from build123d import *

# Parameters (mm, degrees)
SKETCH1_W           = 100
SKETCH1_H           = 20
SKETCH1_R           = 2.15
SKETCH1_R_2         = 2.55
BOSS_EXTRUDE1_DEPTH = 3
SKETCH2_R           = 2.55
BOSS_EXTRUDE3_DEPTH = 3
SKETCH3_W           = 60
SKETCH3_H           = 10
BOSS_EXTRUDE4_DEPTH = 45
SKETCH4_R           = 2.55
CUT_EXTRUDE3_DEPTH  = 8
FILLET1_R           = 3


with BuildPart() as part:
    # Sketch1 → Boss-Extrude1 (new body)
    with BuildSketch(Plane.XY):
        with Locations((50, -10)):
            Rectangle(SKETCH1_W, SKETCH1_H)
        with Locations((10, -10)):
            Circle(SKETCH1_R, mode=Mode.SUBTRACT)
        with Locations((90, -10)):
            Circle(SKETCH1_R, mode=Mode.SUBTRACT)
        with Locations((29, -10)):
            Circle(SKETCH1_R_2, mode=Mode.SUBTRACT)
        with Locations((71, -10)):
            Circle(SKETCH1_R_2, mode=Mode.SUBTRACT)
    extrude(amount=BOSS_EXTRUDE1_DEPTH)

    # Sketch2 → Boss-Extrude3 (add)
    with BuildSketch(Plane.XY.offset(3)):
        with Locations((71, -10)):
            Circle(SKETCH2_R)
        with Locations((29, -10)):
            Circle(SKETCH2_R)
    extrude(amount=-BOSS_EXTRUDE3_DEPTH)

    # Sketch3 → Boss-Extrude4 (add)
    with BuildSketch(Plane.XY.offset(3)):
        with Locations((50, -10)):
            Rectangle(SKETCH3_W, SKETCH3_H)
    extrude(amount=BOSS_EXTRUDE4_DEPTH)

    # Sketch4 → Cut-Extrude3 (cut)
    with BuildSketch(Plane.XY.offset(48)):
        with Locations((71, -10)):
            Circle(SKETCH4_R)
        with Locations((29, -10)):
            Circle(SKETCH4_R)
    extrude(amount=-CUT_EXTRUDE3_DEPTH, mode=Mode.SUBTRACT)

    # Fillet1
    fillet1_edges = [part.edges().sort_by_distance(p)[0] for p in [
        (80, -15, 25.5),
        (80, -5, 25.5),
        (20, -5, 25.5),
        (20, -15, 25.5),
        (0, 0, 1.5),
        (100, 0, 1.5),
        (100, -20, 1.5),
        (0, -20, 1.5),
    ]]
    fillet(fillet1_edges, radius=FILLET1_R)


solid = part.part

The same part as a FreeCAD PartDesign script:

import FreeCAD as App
import Part
import Sketcher

V = App.Vector


def edges_at(feature, points):
    """Names of the edges that pass closest to the given points."""
    edges = feature.Shape.Edges
    near = lambda p: min(range(len(edges)), key=lambda i: edges[i].distToShape(Part.Vertex(*p))[0])
    return sorted({f"Edge{near(p) + 1}" for p in points})

doc = App.newDocument("Part")
params = doc.addObject("Spreadsheet::Sheet", "Params")
for row, (alias, value) in enumerate([
    ("sketch1_diameter", "4.3 mm"),
    ("sketch1_diameter2", "5.1 mm"),
    ("sketch1_width", "100 mm"),
    ("sketch1_height", "20 mm"),
    ("pad1_length", "3 mm"),
    ("sketch2_diameter", "5.1 mm"),
    ("pad2_length", "3 mm"),
    ("sketch3_width", "60 mm"),
    ("sketch3_height", "10 mm"),
    ("pad3_length", "45 mm"),
    ("sketch4_diameter", "5.1 mm"),
    ("pocket1_length", "8 mm"),
    ("fillet_radius", "3 mm"),
], start=1):
    params.set(f"A{row}", alias)
    params.set(f"B{row}", "=" + value)
    params.setAlias(f"B{row}", alias)

body = doc.addObject("PartDesign::Body", "Body")

# Sketch on XY plane
sketch1 = body.newObject("Sketcher::SketchObject", "Sketch")
sketch1.AttachmentSupport = (doc.getObject("XY_Plane"), [""])
sketch1.MapMode = "FlatFace"
sketch1.addGeometry([
    Part.LineSegment(V(0, 0, 0), V(0, -20, 0)),  # 0
    Part.LineSegment(V(0, -20, 0), V(100, -20, 0)),  # 1
    Part.LineSegment(V(100, -20, 0), V(100, 0, 0)),  # 2
    Part.LineSegment(V(100, 0, 0), V(0, 0, 0)),  # 3
    Part.Circle(V(10, -10, 0), V(0, 0, 1), 2.15),  # 4
    Part.Circle(V(29, -10, 0), V(0, 0, 1), 2.55),  # 5
    Part.Circle(V(71, -10, 0), V(0, 0, 1), 2.55),  # 6
    Part.Circle(V(90, -10, 0), V(0, 0, 1), 2.15),  # 7
], False)
sketch1.addConstraint([
    Sketcher.Constraint("Coincident", 0, 2, 1, 1),
    Sketcher.Constraint("Coincident", 1, 2, 2, 1),
    Sketcher.Constraint("Coincident", 2, 2, 3, 1),
    Sketcher.Constraint("Coincident", 3, 2, 0, 1),
    Sketcher.Constraint("Vertical", 0),
    Sketcher.Constraint("Horizontal", 1),
    Sketcher.Constraint("Vertical", 2),
    Sketcher.Constraint("Horizontal", 3),
    Sketcher.Constraint("Coincident", 3, 2, -1, 1),
    Sketcher.Constraint("Equal", 5, 6),
    Sketcher.Constraint("Equal", 4, 7),
    Sketcher.Constraint("Horizontal", 4, 3, 5, 3),
    Sketcher.Constraint("Horizontal", 5, 3, 6, 3),
    Sketcher.Constraint("Horizontal", 6, 3, 7, 3),
    Sketcher.Constraint("Diameter", 4, 4.3),
    Sketcher.Constraint("Diameter", 5, 5.1),
    Sketcher.Constraint("DistanceX", 1, 1, 1, 2, 100.0),
    Sketcher.Constraint("DistanceY", 0, 2, 0, 1, 20.0),
    Sketcher.Constraint("DistanceX", -1, 1, 4, 3, 10.0),
    Sketcher.Constraint("DistanceY", 4, 3, -1, 1, 10.0),
    Sketcher.Constraint("DistanceX", -1, 1, 5, 3, 29.0),
    Sketcher.Constraint("DistanceX", -1, 1, 6, 3, 71.0),
    Sketcher.Constraint("DistanceX", -1, 1, 7, 3, 90.0),
])
sketch1.setExpression("Constraints[14]", "Params.sketch1_diameter")
sketch1.setExpression("Constraints[15]", "Params.sketch1_diameter2")
sketch1.setExpression("Constraints[16]", "Params.sketch1_width")
sketch1.setExpression("Constraints[17]", "Params.sketch1_height")
pad1 = body.newObject("PartDesign::Pad", "Pad")
pad1.Profile = sketch1
pad1.setExpression("Length", "Params.pad1_length")

# Sketch on XY plane
sketch2 = body.newObject("Sketcher::SketchObject", "Sketch001")
sketch2.AttachmentSupport = (doc.getObject("XY_Plane"), [""])
sketch2.MapMode = "FlatFace"
sketch2.AttachmentOffset = App.Placement(V(0, 0, 3), App.Rotation())
sketch2.addGeometry([
    Part.Circle(V(71, -10, 0), V(0, 0, 1), 2.55),
    Part.Circle(V(29, -10, 0), V(0, 0, 1), 2.55),
], False)
sketch2.addConstraint([
    Sketcher.Constraint("Equal", 0, 1),
    Sketcher.Constraint("Horizontal", 0, 3, 1, 3),
    Sketcher.Constraint("Diameter", 0, 5.1),
    Sketcher.Constraint("DistanceX", -1, 1, 0, 3, 71.0),
    Sketcher.Constraint("DistanceY", 0, 3, -1, 1, 10.0),
    Sketcher.Constraint("DistanceX", -1, 1, 1, 3, 29.0),
])
sketch2.setExpression("Constraints[2]", "Params.sketch2_diameter")
pad2 = body.newObject("PartDesign::Pad", "Pad001")
pad2.Profile = sketch2
pad2.setExpression("Length", "Params.pad2_length")
pad2.Reversed = True

# Sketch on XY plane
sketch3 = body.newObject("Sketcher::SketchObject", "Sketch002")
sketch3.AttachmentSupport = (doc.getObject("XY_Plane"), [""])
sketch3.MapMode = "FlatFace"
sketch3.AttachmentOffset = App.Placement(V(0, 0, 3), App.Rotation())
sketch3.addGeometry([
    Part.LineSegment(V(20, -5, 0), V(20, -15, 0)),
    Part.LineSegment(V(20, -15, 0), V(80, -15, 0)),
    Part.LineSegment(V(80, -15, 0), V(80, -5, 0)),
    Part.LineSegment(V(80, -5, 0), V(20, -5, 0)),
], False)
sketch3.addConstraint([
    Sketcher.Constraint("Coincident", 0, 2, 1, 1),
    Sketcher.Constraint("Coincident", 1, 2, 2, 1),
    Sketcher.Constraint("Coincident", 2, 2, 3, 1),
    Sketcher.Constraint("Coincident", 3, 2, 0, 1),
    Sketcher.Constraint("Vertical", 0),
    Sketcher.Constraint("Horizontal", 1),
    Sketcher.Constraint("Vertical", 2),
    Sketcher.Constraint("Horizontal", 3),
    Sketcher.Constraint("DistanceX", 1, 1, 1, 2, 60.0),
    Sketcher.Constraint("DistanceY", 0, 2, 0, 1, 10.0),
    Sketcher.Constraint("DistanceX", -1, 1, 0, 2, 20.0),
    Sketcher.Constraint("DistanceY", 0, 2, -1, 1, 15.0),
])
sketch3.setExpression("Constraints[8]", "Params.sketch3_width")
sketch3.setExpression("Constraints[9]", "Params.sketch3_height")
pad3 = body.newObject("PartDesign::Pad", "Pad002")
pad3.Profile = sketch3
pad3.setExpression("Length", "Params.pad3_length")

# Sketch on XY plane
sketch4 = body.newObject("Sketcher::SketchObject", "Sketch003")
sketch4.AttachmentSupport = (doc.getObject("XY_Plane"), [""])
sketch4.MapMode = "FlatFace"
sketch4.AttachmentOffset = App.Placement(V(0, 0, 48), App.Rotation())
sketch4.addGeometry([
    Part.Circle(V(71, -10, 0), V(0, 0, 1), 2.55),
    Part.Circle(V(29, -10, 0), V(0, 0, 1), 2.55),
], False)
sketch4.addConstraint([
    Sketcher.Constraint("Equal", 0, 1),
    Sketcher.Constraint("Horizontal", 0, 3, 1, 3),
    Sketcher.Constraint("Diameter", 0, 5.1),
    Sketcher.Constraint("DistanceX", -1, 1, 0, 3, 71.0),
    Sketcher.Constraint("DistanceY", 0, 3, -1, 1, 10.0),
    Sketcher.Constraint("DistanceX", -1, 1, 1, 3, 29.0),
])
sketch4.setExpression("Constraints[2]", "Params.sketch4_diameter")
pocket1 = body.newObject("PartDesign::Pocket", "Pocket")
pocket1.Profile = sketch4
pocket1.setExpression("Length", "Params.pocket1_length")
doc.recompute()

fillet = body.newObject("PartDesign::Fillet", "Fillet")
fillet.Base = (pocket1, edges_at(pocket1, [
    (80, -15, 25.5),
    (80, -5, 25.5),
    (20, -5, 25.5),
    (20, -15, 25.5),
    (0, 0, 1.5),
    (100, 0, 1.5),
    (100, -20, 1.5),
    (0, -20, 1.5),
]))
fillet.setExpression("Radius", "Params.fillet_radius")

doc.recompute()
